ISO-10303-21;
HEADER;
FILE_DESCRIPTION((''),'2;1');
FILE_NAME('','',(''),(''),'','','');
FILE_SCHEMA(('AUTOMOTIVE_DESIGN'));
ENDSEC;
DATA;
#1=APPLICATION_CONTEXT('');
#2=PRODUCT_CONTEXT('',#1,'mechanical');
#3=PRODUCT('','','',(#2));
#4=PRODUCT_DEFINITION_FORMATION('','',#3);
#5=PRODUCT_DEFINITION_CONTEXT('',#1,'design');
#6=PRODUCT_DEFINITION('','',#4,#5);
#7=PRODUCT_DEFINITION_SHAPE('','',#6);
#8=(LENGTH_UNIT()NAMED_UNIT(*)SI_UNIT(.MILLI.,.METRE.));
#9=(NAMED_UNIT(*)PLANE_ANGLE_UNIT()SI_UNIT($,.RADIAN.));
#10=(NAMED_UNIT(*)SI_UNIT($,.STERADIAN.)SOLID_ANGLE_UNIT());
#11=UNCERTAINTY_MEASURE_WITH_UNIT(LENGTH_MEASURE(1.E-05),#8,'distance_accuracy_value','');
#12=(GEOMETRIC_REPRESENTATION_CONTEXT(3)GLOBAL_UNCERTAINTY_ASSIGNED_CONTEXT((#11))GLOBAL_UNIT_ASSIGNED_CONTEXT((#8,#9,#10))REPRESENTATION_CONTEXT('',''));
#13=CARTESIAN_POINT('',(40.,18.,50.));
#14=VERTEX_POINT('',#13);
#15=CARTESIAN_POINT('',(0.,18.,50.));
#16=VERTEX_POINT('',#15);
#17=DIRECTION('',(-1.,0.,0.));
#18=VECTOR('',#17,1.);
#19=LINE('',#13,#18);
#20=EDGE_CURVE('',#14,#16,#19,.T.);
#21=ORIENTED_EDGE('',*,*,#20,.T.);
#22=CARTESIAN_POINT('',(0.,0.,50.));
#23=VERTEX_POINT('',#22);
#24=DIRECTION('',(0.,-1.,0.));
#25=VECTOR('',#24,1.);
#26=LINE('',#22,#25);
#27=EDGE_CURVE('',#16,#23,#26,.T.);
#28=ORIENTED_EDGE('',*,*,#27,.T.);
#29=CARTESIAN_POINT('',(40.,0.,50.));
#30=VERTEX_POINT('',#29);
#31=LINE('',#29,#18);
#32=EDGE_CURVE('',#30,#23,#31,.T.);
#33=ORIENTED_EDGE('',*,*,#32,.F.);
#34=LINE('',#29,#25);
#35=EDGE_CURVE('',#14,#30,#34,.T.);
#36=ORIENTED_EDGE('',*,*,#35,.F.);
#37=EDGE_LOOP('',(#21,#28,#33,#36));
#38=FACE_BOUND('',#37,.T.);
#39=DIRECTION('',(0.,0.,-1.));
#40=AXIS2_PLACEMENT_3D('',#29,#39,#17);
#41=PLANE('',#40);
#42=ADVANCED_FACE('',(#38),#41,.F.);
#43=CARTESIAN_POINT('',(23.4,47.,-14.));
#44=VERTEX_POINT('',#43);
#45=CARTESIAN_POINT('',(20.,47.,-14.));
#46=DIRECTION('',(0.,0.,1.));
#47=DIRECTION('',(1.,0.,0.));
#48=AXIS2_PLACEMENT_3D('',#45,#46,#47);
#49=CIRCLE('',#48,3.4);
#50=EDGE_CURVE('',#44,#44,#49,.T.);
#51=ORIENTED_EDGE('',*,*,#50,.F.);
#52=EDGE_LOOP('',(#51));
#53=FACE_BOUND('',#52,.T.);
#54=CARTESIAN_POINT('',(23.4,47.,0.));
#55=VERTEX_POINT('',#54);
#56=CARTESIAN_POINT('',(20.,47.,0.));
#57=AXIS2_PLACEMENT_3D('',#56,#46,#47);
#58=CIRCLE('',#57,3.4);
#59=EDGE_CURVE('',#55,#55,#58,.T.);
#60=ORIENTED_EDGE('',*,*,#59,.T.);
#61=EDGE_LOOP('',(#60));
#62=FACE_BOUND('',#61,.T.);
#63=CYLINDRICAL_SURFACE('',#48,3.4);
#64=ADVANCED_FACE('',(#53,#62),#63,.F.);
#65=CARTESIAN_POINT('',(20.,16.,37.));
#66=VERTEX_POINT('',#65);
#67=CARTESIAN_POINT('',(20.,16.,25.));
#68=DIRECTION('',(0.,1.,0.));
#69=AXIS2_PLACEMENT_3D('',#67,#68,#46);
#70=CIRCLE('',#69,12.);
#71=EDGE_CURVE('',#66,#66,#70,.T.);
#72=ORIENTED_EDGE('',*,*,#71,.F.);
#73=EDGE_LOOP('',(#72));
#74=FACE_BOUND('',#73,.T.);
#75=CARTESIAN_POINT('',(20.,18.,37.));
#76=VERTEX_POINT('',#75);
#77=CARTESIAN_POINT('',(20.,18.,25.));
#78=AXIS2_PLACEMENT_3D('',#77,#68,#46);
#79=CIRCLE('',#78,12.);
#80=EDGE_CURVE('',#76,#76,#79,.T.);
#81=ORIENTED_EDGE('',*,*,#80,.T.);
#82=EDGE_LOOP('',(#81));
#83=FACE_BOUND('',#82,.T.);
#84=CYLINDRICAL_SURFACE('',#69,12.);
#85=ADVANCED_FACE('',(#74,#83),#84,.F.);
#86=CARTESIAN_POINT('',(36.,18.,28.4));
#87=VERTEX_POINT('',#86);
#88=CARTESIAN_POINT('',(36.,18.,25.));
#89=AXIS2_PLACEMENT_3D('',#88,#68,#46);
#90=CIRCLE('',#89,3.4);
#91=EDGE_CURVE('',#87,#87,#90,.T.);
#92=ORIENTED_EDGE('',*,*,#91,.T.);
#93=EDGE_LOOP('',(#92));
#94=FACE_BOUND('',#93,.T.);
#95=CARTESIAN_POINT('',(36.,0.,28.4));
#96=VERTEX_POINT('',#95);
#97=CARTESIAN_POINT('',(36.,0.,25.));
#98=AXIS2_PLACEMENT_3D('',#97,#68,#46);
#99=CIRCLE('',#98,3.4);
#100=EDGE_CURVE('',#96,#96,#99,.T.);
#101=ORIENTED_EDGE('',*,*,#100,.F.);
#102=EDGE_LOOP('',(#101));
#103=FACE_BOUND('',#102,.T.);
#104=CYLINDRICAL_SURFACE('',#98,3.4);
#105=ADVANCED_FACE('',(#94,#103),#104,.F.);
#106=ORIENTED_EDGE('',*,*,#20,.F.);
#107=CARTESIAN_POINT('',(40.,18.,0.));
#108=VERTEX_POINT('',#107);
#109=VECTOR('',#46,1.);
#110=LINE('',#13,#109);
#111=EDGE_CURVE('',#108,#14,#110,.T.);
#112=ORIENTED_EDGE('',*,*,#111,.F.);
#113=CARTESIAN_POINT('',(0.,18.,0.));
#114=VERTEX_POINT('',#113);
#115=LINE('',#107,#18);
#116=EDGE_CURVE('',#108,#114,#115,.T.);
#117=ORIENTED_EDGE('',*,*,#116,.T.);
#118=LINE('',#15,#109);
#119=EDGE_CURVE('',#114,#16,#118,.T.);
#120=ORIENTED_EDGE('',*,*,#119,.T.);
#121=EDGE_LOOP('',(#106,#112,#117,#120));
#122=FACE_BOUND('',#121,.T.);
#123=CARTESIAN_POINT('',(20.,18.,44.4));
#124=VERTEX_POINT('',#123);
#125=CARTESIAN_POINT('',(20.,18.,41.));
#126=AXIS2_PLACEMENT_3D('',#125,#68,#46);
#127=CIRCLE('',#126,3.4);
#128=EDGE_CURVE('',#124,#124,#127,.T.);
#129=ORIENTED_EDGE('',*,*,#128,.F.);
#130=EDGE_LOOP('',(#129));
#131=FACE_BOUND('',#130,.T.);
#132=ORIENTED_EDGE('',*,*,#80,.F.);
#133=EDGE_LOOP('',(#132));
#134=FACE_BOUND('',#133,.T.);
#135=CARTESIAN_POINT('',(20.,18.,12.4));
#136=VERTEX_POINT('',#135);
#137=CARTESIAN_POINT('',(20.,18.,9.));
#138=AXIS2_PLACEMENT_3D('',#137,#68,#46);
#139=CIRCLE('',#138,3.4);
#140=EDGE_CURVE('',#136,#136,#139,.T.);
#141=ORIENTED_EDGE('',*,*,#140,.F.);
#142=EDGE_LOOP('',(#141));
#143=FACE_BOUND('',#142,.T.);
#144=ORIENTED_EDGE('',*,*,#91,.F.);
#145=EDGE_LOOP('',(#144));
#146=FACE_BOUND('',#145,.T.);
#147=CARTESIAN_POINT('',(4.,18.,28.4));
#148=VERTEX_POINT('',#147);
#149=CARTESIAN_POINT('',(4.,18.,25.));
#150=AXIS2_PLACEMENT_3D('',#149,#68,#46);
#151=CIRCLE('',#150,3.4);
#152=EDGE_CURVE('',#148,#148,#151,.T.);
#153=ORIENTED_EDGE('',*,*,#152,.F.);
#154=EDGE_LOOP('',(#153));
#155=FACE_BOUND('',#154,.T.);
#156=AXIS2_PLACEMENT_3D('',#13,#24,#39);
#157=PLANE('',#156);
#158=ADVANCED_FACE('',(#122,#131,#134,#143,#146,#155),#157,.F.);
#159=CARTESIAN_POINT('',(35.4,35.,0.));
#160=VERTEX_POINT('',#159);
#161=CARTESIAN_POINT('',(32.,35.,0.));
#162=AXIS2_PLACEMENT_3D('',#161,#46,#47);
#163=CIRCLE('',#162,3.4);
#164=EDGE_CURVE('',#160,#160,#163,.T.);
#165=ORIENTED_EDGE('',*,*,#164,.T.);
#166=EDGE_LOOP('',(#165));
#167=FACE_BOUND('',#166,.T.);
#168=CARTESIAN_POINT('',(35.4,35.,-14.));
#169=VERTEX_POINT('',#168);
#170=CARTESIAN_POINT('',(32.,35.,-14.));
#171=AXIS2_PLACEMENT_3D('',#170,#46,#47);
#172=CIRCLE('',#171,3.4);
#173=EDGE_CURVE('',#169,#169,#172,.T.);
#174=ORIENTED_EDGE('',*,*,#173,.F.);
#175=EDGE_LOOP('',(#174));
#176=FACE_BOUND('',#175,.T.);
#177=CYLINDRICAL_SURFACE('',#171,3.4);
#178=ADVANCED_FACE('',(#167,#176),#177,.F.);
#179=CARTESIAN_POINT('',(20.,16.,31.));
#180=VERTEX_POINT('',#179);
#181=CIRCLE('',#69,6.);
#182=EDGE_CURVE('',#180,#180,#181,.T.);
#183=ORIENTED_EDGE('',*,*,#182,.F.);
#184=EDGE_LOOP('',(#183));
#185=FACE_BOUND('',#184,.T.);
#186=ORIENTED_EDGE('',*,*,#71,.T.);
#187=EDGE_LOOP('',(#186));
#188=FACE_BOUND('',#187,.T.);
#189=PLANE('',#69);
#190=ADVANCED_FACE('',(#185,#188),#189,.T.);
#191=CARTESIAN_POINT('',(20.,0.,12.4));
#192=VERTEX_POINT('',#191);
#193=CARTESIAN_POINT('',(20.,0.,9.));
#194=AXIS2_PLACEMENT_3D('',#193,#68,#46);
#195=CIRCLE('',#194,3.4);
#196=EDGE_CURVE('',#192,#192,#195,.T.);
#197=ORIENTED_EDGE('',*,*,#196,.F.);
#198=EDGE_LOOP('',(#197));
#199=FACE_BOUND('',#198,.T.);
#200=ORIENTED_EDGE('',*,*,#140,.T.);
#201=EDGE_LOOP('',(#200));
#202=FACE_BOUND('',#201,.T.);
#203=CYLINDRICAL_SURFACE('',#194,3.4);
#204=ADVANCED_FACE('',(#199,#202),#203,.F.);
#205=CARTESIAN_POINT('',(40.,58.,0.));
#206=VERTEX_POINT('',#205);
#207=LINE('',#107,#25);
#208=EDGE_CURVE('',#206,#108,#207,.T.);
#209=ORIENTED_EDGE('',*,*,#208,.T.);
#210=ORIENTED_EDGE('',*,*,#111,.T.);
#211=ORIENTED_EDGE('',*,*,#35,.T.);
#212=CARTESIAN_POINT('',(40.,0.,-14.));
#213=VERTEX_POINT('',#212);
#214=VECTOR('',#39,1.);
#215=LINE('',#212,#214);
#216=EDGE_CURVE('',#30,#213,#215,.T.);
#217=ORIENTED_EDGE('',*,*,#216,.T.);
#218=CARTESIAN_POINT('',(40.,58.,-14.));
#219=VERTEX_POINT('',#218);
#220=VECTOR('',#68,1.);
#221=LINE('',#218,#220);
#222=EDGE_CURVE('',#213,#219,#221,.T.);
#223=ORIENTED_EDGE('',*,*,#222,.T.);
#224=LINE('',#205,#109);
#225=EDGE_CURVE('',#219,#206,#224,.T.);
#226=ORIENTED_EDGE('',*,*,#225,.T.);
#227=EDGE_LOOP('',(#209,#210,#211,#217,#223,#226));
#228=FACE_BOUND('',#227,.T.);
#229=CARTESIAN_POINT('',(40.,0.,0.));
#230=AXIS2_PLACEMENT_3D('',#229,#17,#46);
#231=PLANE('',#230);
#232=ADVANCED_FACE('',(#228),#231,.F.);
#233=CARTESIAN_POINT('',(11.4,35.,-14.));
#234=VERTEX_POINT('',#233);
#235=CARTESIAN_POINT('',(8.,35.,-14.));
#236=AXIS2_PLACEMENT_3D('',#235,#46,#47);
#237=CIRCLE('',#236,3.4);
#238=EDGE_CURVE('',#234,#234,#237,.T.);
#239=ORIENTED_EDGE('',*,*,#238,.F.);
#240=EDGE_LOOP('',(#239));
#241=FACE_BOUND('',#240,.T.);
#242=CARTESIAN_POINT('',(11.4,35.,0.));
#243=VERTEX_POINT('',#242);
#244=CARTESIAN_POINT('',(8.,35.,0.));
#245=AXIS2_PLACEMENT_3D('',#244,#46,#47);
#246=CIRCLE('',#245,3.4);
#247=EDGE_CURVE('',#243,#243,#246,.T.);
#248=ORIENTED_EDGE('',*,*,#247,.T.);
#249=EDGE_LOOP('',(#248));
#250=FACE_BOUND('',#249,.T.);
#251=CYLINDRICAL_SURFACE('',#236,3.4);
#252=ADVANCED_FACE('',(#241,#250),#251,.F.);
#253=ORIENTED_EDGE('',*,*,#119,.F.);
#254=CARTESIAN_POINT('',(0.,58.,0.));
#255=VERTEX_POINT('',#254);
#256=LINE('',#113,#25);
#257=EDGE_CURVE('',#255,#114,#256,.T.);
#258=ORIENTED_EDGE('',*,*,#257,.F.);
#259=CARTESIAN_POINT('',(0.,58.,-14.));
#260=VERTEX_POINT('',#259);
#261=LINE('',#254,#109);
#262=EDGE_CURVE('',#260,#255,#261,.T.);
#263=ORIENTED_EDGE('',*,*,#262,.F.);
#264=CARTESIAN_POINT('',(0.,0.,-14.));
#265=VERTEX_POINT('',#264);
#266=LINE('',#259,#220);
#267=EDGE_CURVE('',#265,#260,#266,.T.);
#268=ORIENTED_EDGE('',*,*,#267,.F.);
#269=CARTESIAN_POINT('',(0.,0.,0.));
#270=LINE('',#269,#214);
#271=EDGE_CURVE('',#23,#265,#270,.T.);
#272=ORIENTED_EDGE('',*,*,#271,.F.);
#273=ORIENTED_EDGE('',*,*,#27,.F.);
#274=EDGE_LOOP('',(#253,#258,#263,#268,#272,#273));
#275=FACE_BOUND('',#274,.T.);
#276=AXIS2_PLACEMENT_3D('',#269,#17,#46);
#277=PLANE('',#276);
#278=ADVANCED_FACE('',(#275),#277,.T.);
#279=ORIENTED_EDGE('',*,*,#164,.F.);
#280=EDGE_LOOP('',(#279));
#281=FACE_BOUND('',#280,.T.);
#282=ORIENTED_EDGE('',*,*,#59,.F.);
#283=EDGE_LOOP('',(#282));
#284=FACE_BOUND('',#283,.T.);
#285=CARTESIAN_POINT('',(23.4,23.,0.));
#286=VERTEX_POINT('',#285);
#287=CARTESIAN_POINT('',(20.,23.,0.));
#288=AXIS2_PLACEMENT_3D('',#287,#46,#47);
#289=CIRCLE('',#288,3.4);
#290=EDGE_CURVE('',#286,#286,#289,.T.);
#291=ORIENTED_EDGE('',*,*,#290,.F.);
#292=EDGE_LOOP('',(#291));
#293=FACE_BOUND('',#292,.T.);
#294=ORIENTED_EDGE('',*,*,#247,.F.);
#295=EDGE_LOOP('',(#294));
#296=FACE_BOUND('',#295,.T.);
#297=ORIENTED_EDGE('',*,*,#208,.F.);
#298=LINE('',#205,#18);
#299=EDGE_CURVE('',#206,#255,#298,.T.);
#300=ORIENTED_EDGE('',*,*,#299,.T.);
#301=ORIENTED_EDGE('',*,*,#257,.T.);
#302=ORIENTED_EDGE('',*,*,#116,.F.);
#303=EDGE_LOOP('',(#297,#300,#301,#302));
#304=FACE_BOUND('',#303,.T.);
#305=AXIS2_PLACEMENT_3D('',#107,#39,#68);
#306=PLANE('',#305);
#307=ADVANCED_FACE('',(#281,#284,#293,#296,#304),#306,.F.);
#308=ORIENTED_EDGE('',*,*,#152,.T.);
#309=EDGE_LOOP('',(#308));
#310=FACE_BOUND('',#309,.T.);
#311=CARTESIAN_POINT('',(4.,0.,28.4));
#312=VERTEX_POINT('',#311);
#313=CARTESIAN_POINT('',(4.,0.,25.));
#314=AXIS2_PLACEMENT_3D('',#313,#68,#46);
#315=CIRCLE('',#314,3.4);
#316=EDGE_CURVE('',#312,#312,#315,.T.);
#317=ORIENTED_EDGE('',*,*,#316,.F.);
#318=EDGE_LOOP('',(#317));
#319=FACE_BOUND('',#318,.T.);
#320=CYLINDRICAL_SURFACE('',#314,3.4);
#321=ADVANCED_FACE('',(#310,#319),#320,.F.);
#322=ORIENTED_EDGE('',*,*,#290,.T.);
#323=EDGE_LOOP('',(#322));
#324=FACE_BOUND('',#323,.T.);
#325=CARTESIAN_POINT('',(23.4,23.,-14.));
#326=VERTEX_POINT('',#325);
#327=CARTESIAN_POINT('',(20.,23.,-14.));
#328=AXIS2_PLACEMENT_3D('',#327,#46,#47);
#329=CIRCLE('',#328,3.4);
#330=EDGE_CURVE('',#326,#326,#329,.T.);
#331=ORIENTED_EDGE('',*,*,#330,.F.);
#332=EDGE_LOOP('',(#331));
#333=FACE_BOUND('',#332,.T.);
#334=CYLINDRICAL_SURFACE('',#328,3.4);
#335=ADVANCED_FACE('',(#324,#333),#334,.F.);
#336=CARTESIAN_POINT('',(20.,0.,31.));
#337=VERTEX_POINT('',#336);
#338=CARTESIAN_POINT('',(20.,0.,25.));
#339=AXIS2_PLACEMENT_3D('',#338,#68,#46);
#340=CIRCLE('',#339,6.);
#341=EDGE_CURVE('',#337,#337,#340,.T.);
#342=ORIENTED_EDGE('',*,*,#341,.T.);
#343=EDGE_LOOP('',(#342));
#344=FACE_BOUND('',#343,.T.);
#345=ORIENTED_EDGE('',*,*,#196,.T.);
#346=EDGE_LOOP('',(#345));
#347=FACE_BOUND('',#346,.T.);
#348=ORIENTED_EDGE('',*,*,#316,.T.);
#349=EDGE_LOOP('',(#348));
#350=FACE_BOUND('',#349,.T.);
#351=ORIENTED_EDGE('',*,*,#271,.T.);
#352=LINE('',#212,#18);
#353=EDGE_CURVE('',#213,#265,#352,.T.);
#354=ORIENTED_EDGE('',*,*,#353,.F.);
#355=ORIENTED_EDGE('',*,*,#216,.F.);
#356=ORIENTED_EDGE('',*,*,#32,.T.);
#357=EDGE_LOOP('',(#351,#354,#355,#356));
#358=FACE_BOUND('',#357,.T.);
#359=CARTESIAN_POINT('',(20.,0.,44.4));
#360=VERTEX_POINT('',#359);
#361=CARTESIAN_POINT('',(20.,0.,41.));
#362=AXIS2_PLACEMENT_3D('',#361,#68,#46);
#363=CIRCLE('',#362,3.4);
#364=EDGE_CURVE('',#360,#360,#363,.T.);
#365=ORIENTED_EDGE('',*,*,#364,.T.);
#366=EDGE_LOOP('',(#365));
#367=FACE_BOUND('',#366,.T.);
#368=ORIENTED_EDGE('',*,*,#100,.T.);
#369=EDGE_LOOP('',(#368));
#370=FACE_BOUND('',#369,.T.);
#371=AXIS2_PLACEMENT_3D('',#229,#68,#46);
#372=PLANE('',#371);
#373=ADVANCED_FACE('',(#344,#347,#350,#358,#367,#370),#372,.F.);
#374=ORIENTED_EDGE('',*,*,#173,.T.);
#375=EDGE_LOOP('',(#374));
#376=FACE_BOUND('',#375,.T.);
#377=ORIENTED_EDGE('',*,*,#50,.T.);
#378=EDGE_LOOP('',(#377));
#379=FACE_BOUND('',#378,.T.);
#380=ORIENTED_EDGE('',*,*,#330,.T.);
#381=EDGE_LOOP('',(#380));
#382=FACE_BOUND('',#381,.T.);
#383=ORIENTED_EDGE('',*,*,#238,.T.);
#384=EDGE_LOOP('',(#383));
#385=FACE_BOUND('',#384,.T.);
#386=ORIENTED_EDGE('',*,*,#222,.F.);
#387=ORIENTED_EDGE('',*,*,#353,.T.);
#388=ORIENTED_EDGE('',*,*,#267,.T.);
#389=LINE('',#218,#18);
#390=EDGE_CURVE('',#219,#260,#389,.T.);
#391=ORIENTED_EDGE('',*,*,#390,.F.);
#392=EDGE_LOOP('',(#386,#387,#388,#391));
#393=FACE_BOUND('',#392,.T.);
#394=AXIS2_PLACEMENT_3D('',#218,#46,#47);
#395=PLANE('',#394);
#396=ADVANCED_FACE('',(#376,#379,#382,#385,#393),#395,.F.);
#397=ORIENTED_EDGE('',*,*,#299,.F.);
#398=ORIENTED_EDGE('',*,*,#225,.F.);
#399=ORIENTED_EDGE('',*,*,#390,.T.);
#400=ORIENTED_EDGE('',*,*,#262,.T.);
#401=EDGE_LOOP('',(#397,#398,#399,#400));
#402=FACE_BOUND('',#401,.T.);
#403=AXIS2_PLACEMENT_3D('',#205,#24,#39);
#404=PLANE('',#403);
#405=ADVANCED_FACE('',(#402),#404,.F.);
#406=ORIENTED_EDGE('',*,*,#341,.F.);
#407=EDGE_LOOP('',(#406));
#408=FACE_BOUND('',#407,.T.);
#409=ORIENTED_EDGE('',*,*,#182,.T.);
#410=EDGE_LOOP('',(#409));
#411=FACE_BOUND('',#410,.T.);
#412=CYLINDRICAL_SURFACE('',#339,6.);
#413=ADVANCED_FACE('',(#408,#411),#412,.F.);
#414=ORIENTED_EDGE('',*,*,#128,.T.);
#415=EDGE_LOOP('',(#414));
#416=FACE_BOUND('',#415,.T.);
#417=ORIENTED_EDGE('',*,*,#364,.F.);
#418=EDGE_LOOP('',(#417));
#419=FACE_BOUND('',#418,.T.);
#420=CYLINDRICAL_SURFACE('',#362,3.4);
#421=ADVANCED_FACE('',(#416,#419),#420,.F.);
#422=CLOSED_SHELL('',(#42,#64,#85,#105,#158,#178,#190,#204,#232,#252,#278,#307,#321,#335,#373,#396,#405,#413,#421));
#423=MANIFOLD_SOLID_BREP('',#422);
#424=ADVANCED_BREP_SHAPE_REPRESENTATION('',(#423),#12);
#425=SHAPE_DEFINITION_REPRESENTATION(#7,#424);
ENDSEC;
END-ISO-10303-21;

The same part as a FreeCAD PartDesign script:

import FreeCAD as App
import Part
import Sketcher
Q = App.Units.Quantity

doc = App.newDocument("Part")
params = doc.addObject("Spreadsheet::Sheet", "Params")
for row, (alias, value) in enumerate([
    ("sketch1_width", "58 mm"),
    ("sketch1_width2", "40 mm"),
    ("sketch1_height", "64 mm"),
    ("sketch1_height2", "14 mm"),
    ("pad1_length", "40 mm"),
    ("sketch2_diameter", "24 mm"),
    ("pocket1_length", "2 mm"),
    ("sketch3_diameter", "12 mm"),
    ("sketch4_diameter", "6.8 mm"),
    ("sketch5_diameter", "6.8 mm"),
], start=1):
    params.set(f"A{row}", alias)
    params.set(f"B{row}", "=" + value)
    params.setAlias(f"B{row}", alias)

body = doc.addObject("PartDesign::Body", "Body")

sketch1 = body.newObject("Sketcher::SketchObject", "Sketch")
sketch1.AttachmentSupport = (doc.getObject("YZ_Plane"), [""])
sketch1.MapMode = "FlatFace"
sketch1.addGeometry(Part.LineSegment(App.Vector(0, 50, 0), App.Vector(0, -14, 0)), False)
sketch1.addGeometry(Part.LineSegment(App.Vector(0, -14, 0), App.Vector(58, -14, 0)), False)
sketch1.addGeometry(Part.LineSegment(App.Vector(58, -14, 0), App.Vector(58, 0, 0)), False)
sketch1.addGeometry(Part.LineSegment(App.Vector(58, 0, 0), App.Vector(18, 0, 0)), False)
sketch1.addGeometry(Part.LineSegment(App.Vector(18, 0, 0), App.Vector(18, 50, 0)), False)
sketch1.addGeometry(Part.LineSegment(App.Vector(18, 50, 0), App.Vector(0, 50, 0)), False)
sketch1.addConstraint(Sketcher.Constraint("Coincident", 0, 2, 1, 1))
sketch1.addConstraint(Sketcher.Constraint("Coincident", 1, 2, 2, 1))
sketch1.addConstraint(Sketcher.Constraint("Coincident", 2, 2, 3, 1))
sketch1.addConstraint(Sketcher.Constraint("Coincident", 3, 2, 4, 1))
sketch1.addConstraint(Sketcher.Constraint("Coincident", 4, 2, 5, 1))
sketch1.addConstraint(Sketcher.Constraint("Coincident", 5, 2, 0, 1))
sketch1.addConstraint(Sketcher.Constraint("Vertical", 0))
sketch1.addConstraint(Sketcher.Constraint("Horizontal", 1))
sketch1.addConstraint(Sketcher.Constraint("Vertical", 2))
sketch1.addConstraint(Sketcher.Constraint("Horizontal", 3))
sketch1.addConstraint(Sketcher.Constraint("Vertical", 4))
sketch1.addConstraint(Sketcher.Constraint("Horizontal", 5))
sketch1.addConstraint(Sketcher.Constraint("PointOnObject", 0, 2, -2))
sketch1.addConstraint(Sketcher.Constraint("PointOnObject", 2, 2, -1))
sketch1.addConstraint(Sketcher.Constraint("DistanceX", 1, 1, 1, 2, Q("58 mm")))
sketch1.addConstraint(Sketcher.Constraint("DistanceX", 3, 2, 3, 1, Q("40 mm")))
sketch1.addConstraint(Sketcher.Constraint("DistanceY", 0, 2, 0, 1, Q("64 mm")))
sketch1.addConstraint(Sketcher.Constraint("DistanceY", 2, 1, 2, 2, Q("14 mm")))
sketch1.setExpression("Constraints[14]", "Params.sketch1_width")
sketch1.setExpression("Constraints[15]", "Params.sketch1_width2")
sketch1.setExpression("Constraints[16]", "Params.sketch1_height")
sketch1.setExpression("Constraints[17]", "Params.sketch1_height2")
pad1 = body.newObject("PartDesign::Pad", "Pad")
pad1.Profile = sketch1
pad1.setExpression("Length", "Params.pad1_length")

sketch2 = body.newObject("Sketcher::SketchObject", "Sketch001")
sketch2.AttachmentSupport = (doc.getObject("XZ_Plane"), [""])
sketch2.MapMode = "FlatFace"
sketch2.AttachmentOffset = App.Placement(App.Vector(0, 0, -18), App.Rotation())
sketch2.addGeometry(Part.Circle(App.Vector(20, 25, 0), App.Vector(0, 0, 1), 12), False)
sketch2.addConstraint(Sketcher.Constraint("Diameter", 0, Q("24 mm")))
sketch2.addConstraint(Sketcher.Constraint("DistanceX", -1, 1, 0, 3, Q("20 mm")))
sketch2.addConstraint(Sketcher.Constraint("DistanceY", -1, 1, 0, 3, Q("25 mm")))
sketch2.setExpression("Constraints[0]", "Params.sketch2_diameter")
pocket1 = body.newObject("PartDesign::Pocket", "Pocket")
pocket1.Profile = sketch2
pocket1.setExpression("Length", "Params.pocket1_length")
pocket1.Reversed = True

sketch3 = body.newObject("Sketcher::SketchObject", "Sketch002")
sketch3.AttachmentSupport = (doc.getObject("XZ_Plane"), [""])
sketch3.MapMode = "FlatFace"
sketch3.AttachmentOffset = App.Placement(App.Vector(0, 0, -16), App.Rotation())
sketch3.addGeometry(Part.Circle(App.Vector(20, 25, 0), App.Vector(0, 0, 1), 6), False)
sketch3.addConstraint(Sketcher.Constraint("Diameter", 0, Q("12 mm")))
sketch3.addConstraint(Sketcher.Constraint("DistanceX", -1, 1, 0, 3, Q("20 mm")))
sketch3.addConstraint(Sketcher.Constraint("DistanceY", -1, 1, 0, 3, Q("25 mm")))
sketch3.setExpression("Constraints[0]", "Params.sketch3_diameter")
pocket2 = body.newObject("PartDesign::Pocket", "Pocket001")
pocket2.Profile = sketch3
pocket2.Type = "ThroughAll"
pocket2.Reversed = True

sketch4 = body.newObject("Sketcher::SketchObject", "Sketch003")
sketch4.AttachmentSupport = (doc.getObject("XZ_Plane"), [""])
sketch4.MapMode = "FlatFace"
sketch4.AttachmentOffset = App.Placement(App.Vector(0, 0, -18), App.Rotation())
sketch4.addGeometry(Part.Circle(App.Vector(20, 9, 0), App.Vector(0, 0, 1), 3.4), False)
sketch4.addGeometry(Part.Circle(App.Vector(36, 25, 0), App.Vector(0, 0, 1), 3.4), False)
sketch4.addGeometry(Part.Circle(App.Vector(20, 41, 0), App.Vector(0, 0, 1), 3.4), False)
sketch4.addGeometry(Part.Circle(App.Vector(4, 25, 0), App.Vector(0, 0, 1), 3.4), False)
sketch4.addConstraint(Sketcher.Constraint("Equal", 0, 1))
sketch4.addConstraint(Sketcher.Constraint("Equal", 1, 2))
sketch4.addConstraint(Sketcher.Constraint("Equal", 2, 3))
sketch4.addConstraint(Sketcher.Constraint("Horizontal", 1, 3, 3, 3))
sketch4.addConstraint(Sketcher.Constraint("Vertical", 0, 3, 2, 3))
sketch4.addConstraint(Sketcher.Constraint("Diameter", 0, Q("6.8 mm")))
sketch4.addConstraint(Sketcher.Constraint("DistanceX", -1, 1, 0, 3, Q("20 mm")))
sketch4.addConstraint(Sketcher.Constraint("DistanceY", -1, 1, 0, 3, Q("9 mm")))
sketch4.addConstraint(Sketcher.Constraint("DistanceX", -1, 1, 1, 3, Q("36 mm")))
sketch4.addConstraint(Sketcher.Constraint("DistanceY", -1, 1, 1, 3, Q("25 mm")))
sketch4.addConstraint(Sketcher.Constraint("DistanceY", -1, 1, 2, 3, Q("41 mm")))
sketch4.addConstraint(Sketcher.Constraint("DistanceX", -1, 1, 3, 3, Q("4 mm")))
sketch4.setExpression("Constraints[5]", "Params.sketch4_diameter")
pocket3 = body.newObject("PartDesign::Pocket", "Pocket002")
pocket3.Profile = sketch4
pocket3.Type = "ThroughAll"
pocket3.Reversed = True

sketch5 = body.newObject("Sketcher::SketchObject", "Sketch004")
sketch5.AttachmentSupport = (doc.getObject("XY_Plane"), [""])
sketch5.MapMode = "FlatFace"
sketch5.addGeometry(Part.Circle(App.Vector(20, 47, 0), App.Vector(0, 0, 1), 3.4), False)
sketch5.addGeometry(Part.Circle(App.Vector(32, 35, 0), App.Vector(0, 0, 1), 3.4), False)
sketch5.addGeometry(Part.Circle(App.Vector(20, 23, 0), App.Vector(0, 0, 1), 3.4), False)
sketch5.addGeometry(Part.Circle(App.Vector(8, 35, 0), App.Vector(0, 0, 1), 3.4), False)
sketch5.addConstraint(Sketcher.Constraint("Equal", 0, 1))
sketch5.addConstraint(Sketcher.Constraint("Equal", 1, 2))
sketch5.addConstraint(Sketcher.Constraint("Equal", 2, 3))
sketch5.addConstraint(Sketcher.Constraint("Horizontal", 1, 3, 3, 3))
sketch5.addConstraint(Sketcher.Constraint("Vertical", 0, 3, 2, 3))
sketch5.addConstraint(Sketcher.Constraint("Diameter", 0, Q("6.8 mm")))
sketch5.addConstraint(Sketcher.Constraint("DistanceX", -1, 1, 0, 3, Q("20 mm")))
sketch5.addConstraint(Sketcher.Constraint("DistanceY", -1, 1, 0, 3, Q("47 mm")))
sketch5.addConstraint(Sketcher.Constraint("DistanceX", -1, 1, 1, 3, Q("32 mm")))
sketch5.addConstraint(Sketcher.Constraint("DistanceY", -1, 1, 1, 3, Q("35 mm")))
sketch5.addConstraint(Sketcher.Constraint("DistanceY", -1, 1, 2, 3, Q("23 mm")))
sketch5.addConstraint(Sketcher.Constraint("DistanceX", -1, 1, 3, 3, Q("8 mm")))
sketch5.setExpression("Constraints[5]", "Params.sketch5_diameter")
pocket4 = body.newObject("PartDesign::Pocket", "Pocket003")
pocket4.Profile = sketch5
pocket4.Type = "ThroughAll"

doc.recompute()
